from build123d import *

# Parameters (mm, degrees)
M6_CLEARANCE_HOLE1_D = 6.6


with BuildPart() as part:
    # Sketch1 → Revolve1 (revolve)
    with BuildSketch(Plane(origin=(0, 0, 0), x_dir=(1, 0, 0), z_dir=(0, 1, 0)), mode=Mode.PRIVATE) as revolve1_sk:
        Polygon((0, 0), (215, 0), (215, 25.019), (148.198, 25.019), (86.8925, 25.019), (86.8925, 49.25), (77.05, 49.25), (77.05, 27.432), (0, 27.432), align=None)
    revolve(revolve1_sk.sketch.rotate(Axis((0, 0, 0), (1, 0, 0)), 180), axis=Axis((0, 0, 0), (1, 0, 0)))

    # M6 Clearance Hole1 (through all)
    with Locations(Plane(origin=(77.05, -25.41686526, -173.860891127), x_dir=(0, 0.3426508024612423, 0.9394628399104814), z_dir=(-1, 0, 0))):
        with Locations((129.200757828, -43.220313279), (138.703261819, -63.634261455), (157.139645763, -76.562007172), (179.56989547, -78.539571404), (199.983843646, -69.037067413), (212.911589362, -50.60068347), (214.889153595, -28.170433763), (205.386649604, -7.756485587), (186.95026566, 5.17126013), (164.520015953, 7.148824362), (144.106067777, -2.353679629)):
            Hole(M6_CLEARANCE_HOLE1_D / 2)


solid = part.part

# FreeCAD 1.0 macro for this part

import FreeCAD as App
import Part
import Sketcher

V = App.Vector

doc = App.newDocument("Part")
params = doc.addObject("Spreadsheet::Sheet", "Params")
for row, (alias, value) in enumerate([
    ("sketch1_width", "215 mm"),
    ("sketch1_width2", "77.05 mm"),
    ("revolution_angle", "360 deg"),
    ("sketch2_diameter", "6.6 mm"),
    ("hole_diameter", "6.6 mm"),
], start=1):
    params.set(f"A{row}", alias)
    params.set(f"B{row}", "=" + value)
    params.setAlias(f"B{row}", alias)

body = doc.addObject("PartDesign::Body", "Body")

# Sketch on XZ plane
sketch1 = body.newObject("Sketcher::SketchObject", "Sketch")
sketch1.AttachmentSupport = (doc.getObject("XZ_Plane"), [""])
sketch1.MapMode = "FlatFace"
sketch1.addGeometry(Part.LineSegment(V(0, 0, 0), V(215, 0, 0)), False)
sketch1.addGeometry(Part.LineSegment(V(215, 0, 0), V(215, -25, 0)), False)
sketch1.addGeometry(Part.LineSegment(V(215, -25, 0), V(87, -25, 0)), False)
sketch1.addGeometry(Part.LineSegment(V(87, -25, 0), V(87, -49, 0)), False)
sketch1.addGeometry(Part.LineSegment(V(87, -49, 0), V(77, -49, 0)), False)
sketch1.addGeometry(Part.LineSegment(V(77, -49, 0), V(77, -27, 0)), False)
sketch1.addGeometry(Part.LineSegment(V(77, -27, 0), V(0, -27, 0)), False)
sketch1.addGeometry(Part.LineSegment(V(0, -27, 0), V(0, 0, 0)), False)
sketch1.addConstraint(Sketcher.Constraint("Coincident", 0, 2, 1, 1))
sketch1.addConstraint(Sketcher.Constraint("Coincident", 1, 2, 2, 1))
sketch1.addConstraint(Sketcher.Constraint("Coincident", 2, 2, 3, 1))
sketch1.addConstraint(Sketcher.Constraint("Coincident", 3, 2, 4, 1))
sketch1.addConstraint(Sketcher.Constraint("Coincident", 4, 2, 5, 1))
sketch1.addConstraint(Sketcher.Constraint("Coincident", 5, 2, 6, 1))
sketch1.addConstraint(Sketcher.Constraint("Coincident", 6, 2, 7, 1))
sketch1.addConstraint(Sketcher.Constraint("Coincident", 7, 2, 0, 1))
sketch1.addConstraint(Sketcher.Constraint("Horizontal", 0))
sketch1.addConstraint(Sketcher.Constraint("Vertical", 1))
sketch1.addConstraint(Sketcher.Constraint("Horizontal", 2))
sketch1.addConstraint(Sketcher.Constraint("Vertical", 3))
sketch1.addConstraint(Sketcher.Constraint("Horizontal", 4))
sketch1.addConstraint(Sketcher.Constraint("Vertical", 5))
sketch1.addConstraint(Sketcher.Constraint("Horizontal", 6))
sketch1.addConstraint(Sketcher.Constraint("Vertical", 7))
sketch1.addConstraint(Sketcher.Constraint("Coincident", 7, 2, -1, 1))
sketch1.addConstraint(Sketcher.Constraint("DistanceX", 0, 1, 0, 2, 215.0))
sketch1.addConstraint(Sketcher.Constraint("DistanceX", 6, 2, 6, 1, 77.05))
sketch1.addConstraint(Sketcher.Constraint("DistanceY", 1, 2, 1, 1, 25.019))
sketch1.addConstraint(Sketcher.Constraint("DistanceY", 3, 2, 3, 1, 24.231))
sketch1.addConstraint(Sketcher.Constraint("DistanceY", 5, 1, 5, 2, 21.818))
sketch1.addConstraint(Sketcher.Constraint("DistanceX", 2, 2, 2, 1, 128.1075))
sketch1.setExpression("Constraints[17]", "Params.sketch1_width")
sketch1.setExpression("Constraints[18]", "Params.sketch1_width2")
revolution = body.newObject("PartDesign::Revolution", "Revolution")
revolution.Profile = sketch1
revolution.ReferenceAxis = (sketch1, ["H_Axis"])
revolution.setExpression("Angle", "Params.revolution_angle")

# Sketch on YZ plane
sketch2 = body.newObject("Sketcher::SketchObject", "Sketch001")
sketch2.AttachmentSupport = (doc.getObject("YZ_Plane"), [""])
sketch2.MapMode = "FlatFace"
sketch2.AttachmentOffset = App.Placement(V(0, 0, 77.05), App.Rotation())
sketch2.addGeometry(Part.Circle(V(-21.8, -37.7, 0), V(0, 0, 1), 3.3), False)
sketch2.addGeometry(Part.Circle(V(-37.7, -21.8, 0), V(0, 0, 1), 3.3), False)
sketch2.addGeometry(Part.Circle(V(-43.5, 0, 0), V(0, 0, 1), 3.3), False)
sketch2.addGeometry(Part.Circle(V(-37.7, 21.7, 0), V(0, 0, 1), 3.3), False)
sketch2.addGeometry(Part.Circle(V(-21.8, 37.7, 0), V(0, 0, 1), 3.3), False)
sketch2.addGeometry(Part.Circle(V(0, 43.5, 0), V(0, 0, 1), 3.3), False)
sketch2.addGeometry(Part.Circle(V(21.7, 37.7, 0), V(0, 0, 1), 3.3), False)
sketch2.addGeometry(Part.Circle(V(37.7, 21.8, 0), V(0, 0, 1), 3.3), False)
sketch2.addGeometry(Part.Circle(V(43.5, 0, 0), V(0, 0, 1), 3.3), False)
sketch2.addGeometry(Part.Circle(V(37.7, -21.8, 0), V(0, 0, 1), 3.3), False)
sketch2.addGeometry(Part.Circle(V(21.7, -37.7, 0), V(0, 0, 1), 3.3), False)
sketch2.addConstraint(Sketcher.Constraint("Equal", 0, 1))
sketch2.addConstraint(Sketcher.Constraint("Equal", 1, 2))
sketch2.addConstraint(Sketcher.Constraint("Equal", 2, 3))
sketch2.addConstraint(Sketcher.Constraint("Equal", 3, 4))
sketch2.addConstraint(Sketcher.Constraint("Equal", 4, 5))
sketch2.addConstraint(Sketcher.Constraint("Equal", 5, 6))
sketch2.addConstraint(Sketcher.Constraint("Equal", 6, 7))
sketch2.addConstraint(Sketcher.Constraint("Equal", 7, 8))
sketch2.addConstraint(Sketcher.Constraint("Equal", 8, 9))
sketch2.addConstraint(Sketcher.Constraint("Equal", 9, 10))
sketch2.addConstraint(Sketcher.Constraint("Symmetric", 0, 3, 6, 3, -1, 1))
sketch2.addConstraint(Sketcher.Constraint("Symmetric", 1, 3, 7, 3, -1, 1))
sketch2.addConstraint(Sketcher.Constraint("Symmetric", 2, 3, 8, 3, -1, 1))
sketch2.addConstraint(Sketcher.Constraint("Symmetric", 3, 3, 9, 3, -1, 1))
sketch2.addConstraint(Sketcher.Constraint("Symmetric", 4, 3, 10, 3, -1, 1))
sketch2.addConstraint(Sketcher.Constraint("Symmetric", 4, 3, 6, 3, -2))
sketch2.addConstraint(Sketcher.Constraint("Symmetric", 3, 3, 7, 3, -2))
sketch2.addConstraint(Sketcher.Constraint("PointOnObject", 2, 3, -1))
sketch2.addConstraint(Sketcher.Constraint("PointOnObject", 5, 3, -2))
sketch2.addConstraint(Sketcher.Constraint("Diameter", 0, 6.6))
sketch2.addConstraint(Sketcher.Constraint("DistanceX", 2, 3, -1, 1, 43.5))
sketch2.addConstraint(Sketcher.Constraint("DistanceY", -1, 1, 5, 3, 43.5))
sketch2.addConstraint(Sketcher.Constraint("DistanceY", 1, 3, 3, 3, 43.5))
sketch2.addConstraint(Sketcher.Constraint("DistanceX", 4, 3, 6, 3, 43.5))
sketch2.addConstraint(Sketcher.Constraint("DistanceY", 0, 3, 4, 3, 75.34421))
sketch2.addConstraint(Sketcher.Constraint("DistanceX", 3, 3, 7, 3, 75.34421))
sketch2.setExpression("Constraints[19]", "Params.sketch2_diameter")
doc.recompute()
hole = body.newObject("PartDesign::Hole", "Hole")
hole.Profile = sketch2
hole.ThreadType = "None"
hole.setExpression("Diameter", "Params.hole_diameter")
hole.DepthType = "ThroughAll"
hole.Reversed = True

doc.recompute()
